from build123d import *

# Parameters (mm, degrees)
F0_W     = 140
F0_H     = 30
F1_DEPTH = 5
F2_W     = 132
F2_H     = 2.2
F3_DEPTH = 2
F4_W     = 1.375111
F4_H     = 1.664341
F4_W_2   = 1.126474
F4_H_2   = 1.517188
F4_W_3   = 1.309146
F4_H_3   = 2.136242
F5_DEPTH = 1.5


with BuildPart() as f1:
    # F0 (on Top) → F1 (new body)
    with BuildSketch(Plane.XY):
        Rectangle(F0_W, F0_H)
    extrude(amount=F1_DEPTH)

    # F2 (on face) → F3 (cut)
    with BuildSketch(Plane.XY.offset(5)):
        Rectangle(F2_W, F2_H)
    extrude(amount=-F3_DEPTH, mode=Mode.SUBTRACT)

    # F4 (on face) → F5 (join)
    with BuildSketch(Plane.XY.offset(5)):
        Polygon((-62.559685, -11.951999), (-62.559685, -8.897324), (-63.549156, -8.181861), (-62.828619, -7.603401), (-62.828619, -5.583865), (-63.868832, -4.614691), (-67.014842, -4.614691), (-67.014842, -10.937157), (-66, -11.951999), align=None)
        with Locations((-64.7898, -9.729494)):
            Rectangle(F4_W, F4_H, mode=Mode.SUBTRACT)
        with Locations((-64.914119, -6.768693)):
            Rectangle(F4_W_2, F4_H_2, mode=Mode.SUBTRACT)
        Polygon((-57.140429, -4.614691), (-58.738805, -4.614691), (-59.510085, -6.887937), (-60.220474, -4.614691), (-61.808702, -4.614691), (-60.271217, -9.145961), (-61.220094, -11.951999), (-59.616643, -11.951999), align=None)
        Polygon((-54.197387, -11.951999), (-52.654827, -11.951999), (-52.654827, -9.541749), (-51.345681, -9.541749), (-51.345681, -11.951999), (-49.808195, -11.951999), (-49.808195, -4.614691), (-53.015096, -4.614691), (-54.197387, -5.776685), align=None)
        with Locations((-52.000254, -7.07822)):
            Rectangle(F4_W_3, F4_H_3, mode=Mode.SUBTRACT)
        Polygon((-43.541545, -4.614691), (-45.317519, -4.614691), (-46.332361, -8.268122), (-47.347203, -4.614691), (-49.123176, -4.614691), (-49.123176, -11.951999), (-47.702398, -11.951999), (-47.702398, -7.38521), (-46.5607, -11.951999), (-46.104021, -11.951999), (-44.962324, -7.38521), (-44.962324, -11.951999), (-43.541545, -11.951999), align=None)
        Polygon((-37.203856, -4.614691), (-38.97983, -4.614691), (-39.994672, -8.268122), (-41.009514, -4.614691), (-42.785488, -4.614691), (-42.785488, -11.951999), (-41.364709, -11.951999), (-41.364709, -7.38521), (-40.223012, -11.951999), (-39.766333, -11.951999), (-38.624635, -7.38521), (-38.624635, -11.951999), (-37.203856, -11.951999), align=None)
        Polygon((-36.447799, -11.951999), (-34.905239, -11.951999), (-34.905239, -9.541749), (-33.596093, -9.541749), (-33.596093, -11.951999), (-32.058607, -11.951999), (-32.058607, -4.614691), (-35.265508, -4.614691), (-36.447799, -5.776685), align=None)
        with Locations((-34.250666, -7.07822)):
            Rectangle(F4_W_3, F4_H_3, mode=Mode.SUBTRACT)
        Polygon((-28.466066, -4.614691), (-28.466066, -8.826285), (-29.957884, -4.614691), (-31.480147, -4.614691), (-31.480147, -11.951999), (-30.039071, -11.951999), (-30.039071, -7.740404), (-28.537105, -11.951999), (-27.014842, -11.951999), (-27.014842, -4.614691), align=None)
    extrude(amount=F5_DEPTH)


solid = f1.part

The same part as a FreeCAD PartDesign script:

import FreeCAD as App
import Part
import Sketcher
Q = App.Units.Quantity


def add_polygon(sketch, points):
    """Adds a closed chain of lines whose ends are joined by coincident constraints."""
    first, n = sketch.GeometryCount, len(points)
    for a, b in zip(points, points[1:] + points[:1]):
        sketch.addGeometry(Part.LineSegment(App.Vector(*a, 0), App.Vector(*b, 0)), False)
    for i in range(n):
        sketch.addConstraint(Sketcher.Constraint("Coincident", first + i, 2, first + (i + 1) % n, 1))

doc = App.newDocument("Part")
body = doc.addObject("PartDesign::Body", "Body")

# Sketch on XY plane
sketch1 = body.newObject("Sketcher::SketchObject", "Sketch")
sketch1.AttachmentSupport = (doc.getObject("XY_Plane"), [""])
sketch1.MapMode = "FlatFace"
add_polygon(sketch1, [(-70, 15), (-70, -15), (70, -15), (70, 15)])  # lines 0-3
sketch1.addConstraint([
    Sketcher.Constraint("Vertical", 0),
    Sketcher.Constraint("Horizontal", 1),
    Sketcher.Constraint("Vertical", 2),
    Sketcher.Constraint("Horizontal", 3),
    Sketcher.Constraint("Symmetric", 0, 2, 2, 2, -1, 1),
    Sketcher.Constraint("DistanceX", 1, 1, 1, 2, 140.0),
    Sketcher.Constraint("DistanceY", 0, 2, 0, 1, 30.0),
])
pad1 = body.newObject("PartDesign::Pad", "Pad")
pad1.Profile = sketch1
pad1.Length = 5

# Sketch on XY plane
sketch2 = body.newObject("Sketcher::SketchObject", "Sketch001")
sketch2.AttachmentSupport = (doc.getObject("XY_Plane"), [""])
sketch2.MapMode = "FlatFace"
sketch2.AttachmentOffset = App.Placement(App.Vector(0, 0, 5), App.Rotation())
add_polygon(sketch2, [(-66, 1.1), (-66, -1.1), (66, -1.1), (66, 1.1)])  # lines 0-3
sketch2.addConstraint([
    Sketcher.Constraint("Vertical", 0),
    Sketcher.Constraint("Horizontal", 1),
    Sketcher.Constraint("Vertical", 2),
    Sketcher.Constraint("Horizontal", 3),
    Sketcher.Constraint("Symmetric", 0, 2, 2, 2, -1, 1),
    Sketcher.Constraint("DistanceX", 1, 1, 1, 2, 132.0),
    Sketcher.Constraint("DistanceY", 0, 2, 0, 1, 2.2),
])
pocket1 = body.newObject("PartDesign::Pocket", "Pocket")
pocket1.Profile = sketch2
pocket1.Length = 2

# Sketch on XY plane
sketch3 = body.newObject("Sketcher::SketchObject", "Sketch002")
sketch3.AttachmentSupport = (doc.getObject("XY_Plane"), [""])
sketch3.MapMode = "FlatFace"
sketch3.AttachmentOffset = App.Placement(App.Vector(0, 0, 5), App.Rotation())
add_polygon(sketch3, [(-62.56, -11.95), (-62.56, -8.9), (-63.55, -8.18), (-62.83, -7.6), (-62.83, -5.58), (-63.87, -4.61), (-67.01, -4.61), (-67.01, -10.94), (-66, -11.95)])  # lines 0-8
add_polygon(sketch3, [(-64.1, -10.56), (-65.48, -10.56), (-65.48, -8.9), (-64.1, -8.9)])  # lines 9-12
add_polygon(sketch3, [(-64.35, -7.53), (-65.48, -7.53), (-65.48, -6.01), (-64.35, -6.01)])  # lines 13-16
add_polygon(sketch3, [(-57.14, -4.61), (-58.74, -4.61), (-59.51, -6.89), (-60.22, -4.61), (-61.81, -4.61), (-60.27, -9.15), (-61.22, -11.95), (-59.62, -11.95)])  # lines 17-24
add_polygon(sketch3, [(-54.2, -11.95), (-52.65, -11.95), (-52.65, -9.54), (-51.35, -9.54), (-51.35, -11.95), (-49.81, -11.95), (-49.81, -4.61), (-53.02, -4.61), (-54.2, -5.78)])  # lines 25-33
add_polygon(sketch3, [(-51.35, -8.15), (-52.65, -8.15), (-52.65, -6.01), (-51.35, -6.01)])  # lines 34-37
add_polygon(sketch3, [(-43.54, -4.61), (-45.32, -4.61), (-46.33, -8.27), (-47.35, -4.61), (-49.12, -4.61), (-49.12, -11.95), (-47.7, -11.95), (-47.7, -7.39), (-46.56, -11.95), (-46.1, -11.95), (-44.96, -7.39), (-44.96, -11.95), (-43.54, -11.95)])  # lines 38-50
add_polygon(sketch3, [(-37.2, -4.61), (-38.98, -4.61), (-39.99, -8.27), (-41.01, -4.61), (-42.79, -4.61), (-42.79, -11.95), (-41.36, -11.95), (-41.36, -7.39), (-40.22, -11.95), (-39.77, -11.95), (-38.62, -7.39), (-38.62, -11.95), (-37.2, -11.95)])  # lines 51-63
add_polygon(sketch3, [(-36.45, -11.95), (-34.91, -11.95), (-34.91, -9.54), (-33.6, -9.54), (-33.6, -11.95), (-32.06, -11.95), (-32.06, -4.61), (-35.27, -4.61), (-36.45, -5.78)])  # lines 64-72
add_polygon(sketch3, [(-33.6, -8.15), (-34.91, -8.15), (-34.91, -6.01), (-33.6, -6.01)])  # lines 73-76
add_polygon(sketch3, [(-28.47, -4.61), (-28.47, -8.83), (-29.96, -4.61), (-31.48, -4.61), (-31.48, -11.95), (-30.04, -11.95), (-30.04, -7.74), (-28.54, -11.95), (-27.01, -11.95), (-27.01, -4.61)])  # lines 77-86
sketch3.addConstraint([
    Sketcher.Constraint("Vertical", 0),
    Sketcher.Constraint("Vertical", 3),
    Sketcher.Constraint("Horizontal", 5),
    Sketcher.Constraint("Vertical", 6),
    Sketcher.Constraint("Horizontal", 8),
    Sketcher.Constraint("Horizontal", 9),
    Sketcher.Constraint("Vertical", 10),
    Sketcher.Constraint("Horizontal", 11),
    Sketcher.Constraint("Vertical", 12),
    Sketcher.Constraint("Horizontal", 13),
    Sketcher.Constraint("Vertical", 14),
    Sketcher.Constraint("Horizontal", 15),
    Sketcher.Constraint("Vertical", 16),
    Sketcher.Constraint("Horizontal", 17),
    Sketcher.Constraint("Horizontal", 20),
    Sketcher.Constraint("Horizontal", 23),
    Sketcher.Constraint("Horizontal", 25),
    Sketcher.Constraint("Vertical", 26),
    Sketcher.Constraint("Horizontal", 27),
    Sketcher.Constraint("Vertical", 28),
    Sketcher.Constraint("Horizontal", 29),
    Sketcher.Constraint("Vertical", 30),
    Sketcher.Constraint("Horizontal", 31),
    Sketcher.Constraint("Vertical", 33),
    Sketcher.Constraint("Horizontal", 34),
    Sketcher.Constraint("Vertical", 35),
    Sketcher.Constraint("Horizontal", 36),
    Sketcher.Constraint("Vertical", 37),
    Sketcher.Constraint("Horizontal", 38),
    Sketcher.Constraint("Horizontal", 41),
    Sketcher.Constraint("Vertical", 42),
    Sketcher.Constraint("Horizontal", 43),
    Sketcher.Constraint("Vertical", 44),
    Sketcher.Constraint("Horizontal", 46),
    Sketcher.Constraint("Vertical", 48),
    Sketcher.Constraint("Horizontal", 49),
    Sketcher.Constraint("Vertical", 50),
    Sketcher.Constraint("Horizontal", 51),
    Sketcher.Constraint("Horizontal", 54),
    Sketcher.Constraint("Vertical", 55),
    Sketcher.Constraint("Horizontal", 56),
    Sketcher.Constraint("Vertical", 57),
    Sketcher.Constraint("Horizontal", 59),
    Sketcher.Constraint("Vertical", 61),
    Sketcher.Constraint("Horizontal", 62),
    Sketcher.Constraint("Vertical", 63),
    Sketcher.Constraint("Horizontal", 64),
    Sketcher.Constraint("Vertical", 65),
    Sketcher.Constraint("Horizontal", 66),
    Sketcher.Constraint("Vertical", 67),
    Sketcher.Constraint("Horizontal", 68),
    Sketcher.Constraint("Vertical", 69),
    Sketcher.Constraint("Horizontal", 70),
    Sketcher.Constraint("Vertical", 72),
    Sketcher.Constraint("Horizontal", 73),
    Sketcher.Constraint("Vertical", 74),
    Sketcher.Constraint("Horizontal", 75),
    Sketcher.Constraint("Vertical", 76),
    Sketcher.Constraint("Vertical", 77),
    Sketcher.Constraint("Horizontal", 79),
    Sketcher.Constraint("Vertical", 80),
    Sketcher.Constraint("Horizontal", 81),
    Sketcher.Constraint("Vertical", 82),
    Sketcher.Constraint("Horizontal", 84),
    Sketcher.Constraint("Vertical", 85),
    Sketcher.Constraint("Horizontal", 86),
    Sketcher.Constraint("Parallel", 39, 52),
    Sketcher.Constraint("Parallel", 40, 53),
    Sketcher.Constraint("Parallel", 45, 58),
    Sketcher.Constraint("Parallel", 47, 60),
    Sketcher.Constraint("Parallel", 32, 71),
    Sketcher.Constraint("Horizontal", 0, 2, 10, 2),
    Sketcher.Constraint("Horizontal", 5, 2, 17, 2),
    Sketcher.Constraint("Horizontal", 17, 2, 19, 2),
    Sketcher.Constraint("Horizontal", 8, 2, 22, 2),
    Sketcher.Constraint("Horizontal", 23, 2, 25, 2),
    Sketcher.Constraint("Horizontal", 25, 2, 28, 2),
    Sketcher.Constraint("Horizontal", 24, 2, 30, 2),
    Sketcher.Constraint("Horizontal", 15, 2, 35, 2),
    Sketcher.Constraint("Horizontal", 31, 2, 38, 2),
    Sketcher.Constraint("Horizontal", 38, 2, 40, 2),
    Sketcher.Constraint("Horizontal", 33, 2, 42, 2),
    Sketcher.Constraint("Horizontal", 43, 2, 45, 2),
    Sketcher.Constraint("Horizontal", 44, 2, 47, 2),
    Sketcher.Constraint("Horizontal", 46, 2, 48, 2),
    Sketcher.Constraint("Horizontal", 50, 2, 51, 2),
    Sketcher.Constraint("Horizontal", 39, 2, 52, 2),
    Sketcher.Constraint("Horizontal", 51, 2, 53, 2),
    Sketcher.Constraint("Horizontal", 49, 2, 55, 2),
    Sketcher.Constraint("Horizontal", 47, 2, 57, 2),
    Sketcher.Constraint("Horizontal", 56, 2, 58, 2),
    Sketcher.Constraint("Horizontal", 57, 2, 60, 2),
    Sketcher.Constraint("Horizontal", 59, 2, 61, 2),
    Sketcher.Constraint("Horizontal", 62, 2, 64, 2),
    Sketcher.Constraint("Horizontal", 27, 2, 65, 2),
    Sketcher.Constraint("Horizontal", 64, 2, 67, 2),
    Sketcher.Constraint("Horizontal", 63, 2, 69, 2),
    Sketcher.Constraint("Horizontal", 32, 2, 71, 2),
    Sketcher.Constraint("Horizontal", 37, 2, 73, 2),
    Sketcher.Constraint("Horizontal", 36, 2, 74, 2),
    Sketcher.Constraint("Horizontal", 70, 2, 78, 2),
    Sketcher.Constraint("Horizontal", 72, 2, 80, 2),
    Sketcher.Constraint("Horizontal", 81, 2, 83, 2),
    Sketcher.Constraint("Horizontal", 79, 2, 85, 2),
    Sketcher.Constraint("Vertical", 10, 2, 13, 2),
    Sketcher.Constraint("Vertical", 26, 2, 34, 2),
    Sketcher.Constraint("Vertical", 28, 2, 36, 2),
    Sketcher.Constraint("Vertical", 65, 2, 73, 2),
    Sketcher.Constraint("Vertical", 67, 2, 75, 2),
    Sketcher.Constraint("Equal", 38, 41),
    Sketcher.Constraint("Equal", 43, 49),
    Sketcher.Constraint("Equal", 41, 51),
    Sketcher.Constraint("Equal", 51, 54),
    Sketcher.Constraint("Equal", 49, 56),
    Sketcher.Constraint("Equal", 46, 59),
    Sketcher.Constraint("Equal", 25, 64),
    Sketcher.Constraint("Equal", 36, 66),
    Sketcher.Constraint("Equal", 29, 68),
    Sketcher.Constraint("Equal", 79, 84),
    Sketcher.Constraint("Equal", 77, 82),
    Sketcher.Constraint("Equal", 39, 40),
    Sketcher.Constraint("Equal", 45, 47),
    Sketcher.Constraint("Angle", 7, Q("-45 deg")),
    Sketcher.Constraint("DistanceX", 7, 2, -1, 1, 66.0),
    Sketcher.Constraint("DistanceX", 31, 2, 31, 1, 3.206901),
    Sketcher.Constraint("DistanceY", 7, 2, -1, 1, 11.951999),
    Sketcher.Constraint("Distance", 83, 4.471402),
    Sketcher.Constraint("DistanceX", 5, 2, 5, 1, 3.14601),
    Sketcher.Constraint("DistanceX", 9, 2, 9, 1, 1.375111),
    Sketcher.Constraint("DistanceX", 23, 1, 23, 2, 1.603451),
    Sketcher.Constraint("DistanceX", 25, 1, 25, 2, 1.54256),
    Sketcher.Constraint("DistanceX", 46, 1, 46, 2, 0.456679),
    Sketcher.Constraint("DistanceX", 49, 1, 49, 2, 1.420779),
    Sketcher.Constraint("DistanceY", 10, 1, 10, 2, 1.664341),
    Sketcher.Constraint("DistanceY", 26, 1, 26, 2, 2.41025),
    Sketcher.Constraint("DistanceY", 30, 1, 30, 2, 7.337308),
    Sketcher.Constraint("DistanceY", 35, 1, 35, 2, 2.136242),
    Sketcher.Constraint("DistanceY", 44, 1, 44, 2, 4.566789),
    Sketcher.Constraint("DistanceY", 2, 2, -1, 1, 7.603401),
    Sketcher.Constraint("DistanceY", 14, 2, -1, 1, 6.010099),
    Sketcher.Constraint("DistanceX", 20, 2, -1, 1, 61.808702),
    Sketcher.Constraint("DistanceX", 43, 2, -1, 1, 47.702398),
    Sketcher.Constraint("DistanceX", 45, 2, -1, 1, 46.5607),
    Sketcher.Constraint("DistanceX", 71, 2, -1, 1, 36.447799),
    Sketcher.Constraint("Distance", 1, 1.221041),
    Sketcher.Constraint("Distance", 4, 1.421739),
    Sketcher.Constraint("Distance", 19, 2.381659),
    Sketcher.Constraint("Distance", 22, 2.96213),
    Sketcher.Constraint("Distance", 32, 1.657722),
    Sketcher.Constraint("DistanceX", 8, 1, 8, 2, 3.440315),
    Sketcher.Constraint("DistanceX", 13, 2, 13, 1, 1.126474),
    Sketcher.Constraint("DistanceX", 17, 2, 17, 1, 1.598376),
    Sketcher.Constraint("DistanceX", 20, 2, 20, 1, 1.588228),
    Sketcher.Constraint("DistanceX", 27, 1, 27, 2, 1.309146),
    Sketcher.Constraint("DistanceX", 29, 1, 29, 2, 1.537486),
    Sketcher.Constraint("DistanceX", 38, 2, 38, 1, 1.775974),
    Sketcher.Constraint("DistanceX", 79, 2, 79, 1, 1.522263),
    Sketcher.Constraint("DistanceX", 81, 1, 81, 2, 1.441076),
    Sketcher.Constraint("DistanceX", 86, 2, 86, 1, 1.451224),
    Sketcher.Constraint("DistanceY", 0, 1, 0, 2, 3.054675),
    Sketcher.Constraint("DistanceY", 3, 1, 3, 2, 2.019536),
    Sketcher.Constraint("DistanceY", 6, 2, 6, 1, 6.322466),
    Sketcher.Constraint("DistanceY", 14, 1, 14, 2, 1.517188),
    Sketcher.Constraint("DistanceY", 77, 2, 77, 1, 4.211594),
    Sketcher.Constraint("DistanceY", 1, 2, -1, 1, 8.181861),
    Sketcher.Constraint("DistanceX", 15, 2, -1, 1, 64.350882),
    Sketcher.Constraint("DistanceY", 21, 2, -1, 1, 9.145961),
    Sketcher.Constraint("DistanceX", 24, 2, -1, 1, 57.140429),
    Sketcher.Constraint("DistanceX", 27, 2, -1, 1, 51.345681),
    Sketcher.Constraint("DistanceX", 51, 2, -1, 1, 38.97983),
    Sketcher.Constraint("DistanceX", 81, 2, -1, 1, 30.039071),
    Sketcher.Constraint("Distance", 18, 2.400525),
    Sketcher.Constraint("Distance", 21, 4.785004),
    Sketcher.Constraint("Distance", 39, 3.791762),
])
pad2 = body.newObject("PartDesign::Pad", "Pad001")
pad2.Profile = sketch3
pad2.Length = 1.5

doc.recompute()
